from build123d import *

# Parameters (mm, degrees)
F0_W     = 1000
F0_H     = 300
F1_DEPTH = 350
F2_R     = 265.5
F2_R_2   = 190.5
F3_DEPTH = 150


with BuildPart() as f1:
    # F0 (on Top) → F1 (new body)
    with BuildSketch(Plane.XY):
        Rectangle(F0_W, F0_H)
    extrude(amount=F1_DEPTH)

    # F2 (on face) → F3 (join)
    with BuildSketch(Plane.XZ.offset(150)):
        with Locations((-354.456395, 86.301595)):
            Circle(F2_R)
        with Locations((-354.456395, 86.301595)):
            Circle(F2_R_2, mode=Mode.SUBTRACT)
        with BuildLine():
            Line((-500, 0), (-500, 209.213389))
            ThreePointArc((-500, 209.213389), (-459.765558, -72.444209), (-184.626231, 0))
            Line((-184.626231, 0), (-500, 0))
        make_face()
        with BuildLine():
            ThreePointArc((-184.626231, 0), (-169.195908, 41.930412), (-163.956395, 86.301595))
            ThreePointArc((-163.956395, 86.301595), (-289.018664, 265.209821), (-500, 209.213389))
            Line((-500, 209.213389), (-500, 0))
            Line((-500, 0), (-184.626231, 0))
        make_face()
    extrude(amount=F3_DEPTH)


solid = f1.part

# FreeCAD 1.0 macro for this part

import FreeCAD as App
import Part
import Sketcher

V = App.Vector

doc = App.newDocument("Part")
params = doc.addObject("Spreadsheet::Sheet", "Params")
for row, (alias, value) in enumerate([
    ("sketch1_width", "1000 mm"),
    ("sketch1_height", "300 mm"),
    ("pad1_length", "350 mm"),
    ("sketch2_diameter", "531 mm"),
    ("pad2_length", "150 mm"),
], start=1):
    params.set(f"A{row}", alias)
    params.set(f"B{row}", "=" + value)
    params.setAlias(f"B{row}", alias)

body = doc.addObject("PartDesign::Body", "Body")

sketch1 = doc.addObject("Sketcher::SketchObject", "Sketch")
body.addObject(sketch1)
sketch1.AttachmentSupport = (doc.XY_Plane, [""])
sketch1.MapMode = "FlatFace"
sketch1.addGeometry([
    Part.LineSegment(V(-500, 150, 0), V(-500, -150, 0)),
    Part.LineSegment(V(-500, -150, 0), V(500, -150, 0)),
    Part.LineSegment(V(500, -150, 0), V(500, 150, 0)),
    Part.LineSegment(V(500, 150, 0), V(-500, 150, 0)),
], False)
sketch1.addConstraint([
    Sketcher.Constraint("Coincident", 0, 2, 1, 1),
    Sketcher.Constraint("Coincident", 1, 2, 2, 1),
    Sketcher.Constraint("Coincident", 2, 2, 3, 1),
    Sketcher.Constraint("Coincident", 3, 2, 0, 1),
    Sketcher.Constraint("Vertical", 0),
    Sketcher.Constraint("Horizontal", 1),
    Sketcher.Constraint("Vertical", 2),
    Sketcher.Constraint("Horizontal", 3),
    Sketcher.Constraint("Symmetric", 0, 2, 2, 2, -1, 1),
    Sketcher.Constraint("DistanceX", 1, 1, 1, 2, 1000.0),
    Sketcher.Constraint("DistanceY", 0, 2, 0, 1, 300.0),
])
sketch1.setExpression("Constraints[9]", "Params.sketch1_width")
sketch1.setExpression("Constraints[10]", "Params.sketch1_height")
pad1 = doc.addObject("PartDesign::Pad", "Pad")
body.addObject(pad1)
pad1.Profile = sketch1
pad1.setExpression("Length", "Params.pad1_length")

sketch2 = doc.addObject("Sketcher::SketchObject", "Sketch001")
body.addObject(sketch2)
sketch2.AttachmentSupport = (doc.XZ_Plane, [""])
sketch2.MapMode = "FlatFace"
sketch2.AttachmentOffset = App.Placement(V(0, 0, 150), App.Rotation())
sketch2.addGeometry(Part.Circle(V(-354, 86, 0), V(0, 0, 1), 266), False)
sketch2.addConstraint([
    Sketcher.Constraint("Diameter", 0, 531.0),
    Sketcher.Constraint("DistanceX", 0, 3, -1, 1, 354.456395),
    Sketcher.Constraint("DistanceY", -1, 1, 0, 3, 86.301595),
])
sketch2.setExpression("Constraints[0]", "Params.sketch2_diameter")
pad2 = doc.addObject("PartDesign::Pad", "Pad001")
body.addObject(pad2)
pad2.Profile = sketch2
pad2.setExpression("Length", "Params.pad2_length")

doc.recompute()
